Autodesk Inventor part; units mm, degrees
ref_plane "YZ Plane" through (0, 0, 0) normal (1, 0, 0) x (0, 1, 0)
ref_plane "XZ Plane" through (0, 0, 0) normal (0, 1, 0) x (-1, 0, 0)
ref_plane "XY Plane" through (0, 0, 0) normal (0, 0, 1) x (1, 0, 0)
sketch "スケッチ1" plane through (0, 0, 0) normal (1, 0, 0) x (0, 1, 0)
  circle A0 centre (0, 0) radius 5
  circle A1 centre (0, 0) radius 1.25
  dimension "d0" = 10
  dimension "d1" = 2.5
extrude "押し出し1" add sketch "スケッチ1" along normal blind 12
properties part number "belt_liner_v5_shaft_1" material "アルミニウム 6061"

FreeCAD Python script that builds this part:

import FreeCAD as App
import Part
import Sketcher
from FreeCAD import Vector

doc = App.newDocument("Part")
params = doc.addObject("Spreadsheet::Sheet", "Params")
for row, (alias, value) in enumerate([
    ("sketch1_diameter", "10 mm"),
    ("sketch1_diameter2", "2.5 mm"),
    ("pad1_length", "12 mm"),
], start=1):
    params.set(f"A{row}", alias)
    params.set(f"B{row}", "=" + value)
    params.setAlias(f"B{row}", alias)

body = doc.addObject("PartDesign::Body", "Body")

# Sketch on YZ plane
sketch1 = body.newObject("Sketcher::SketchObject", "Sketch")
sketch1.AttachmentSupport = (doc.getObject("YZ_Plane"), [""])
sketch1.MapMode = "FlatFace"
sketch1.addGeometry(Part.Circle(Vector(0, 0, 0), Vector(0, 0, 1), 5), False)
sketch1.addGeometry(Part.Circle(Vector(0, 0, 0), Vector(0, 0, 1), 1.2), False)
sketch1.addConstraint(Sketcher.Constraint("Coincident", 0, 3, -1, 1))
sketch1.addConstraint(Sketcher.Constraint("Coincident", 1, 3, -1, 1))
sketch1.addConstraint(Sketcher.Constraint("Diameter", 0, 10.0))
sketch1.addConstraint(Sketcher.Constraint("Diameter", 1, 2.5))
sketch1.setExpression("Constraints[2]", "Params.sketch1_diameter")
sketch1.setExpression("Constraints[3]", "Params.sketch1_diameter2")
pad1 = body.newObject("PartDesign::Pad", "Pad")
pad1.Profile = sketch1
pad1.setExpression("Length", "Params.pad1_length")

doc.recompute()
